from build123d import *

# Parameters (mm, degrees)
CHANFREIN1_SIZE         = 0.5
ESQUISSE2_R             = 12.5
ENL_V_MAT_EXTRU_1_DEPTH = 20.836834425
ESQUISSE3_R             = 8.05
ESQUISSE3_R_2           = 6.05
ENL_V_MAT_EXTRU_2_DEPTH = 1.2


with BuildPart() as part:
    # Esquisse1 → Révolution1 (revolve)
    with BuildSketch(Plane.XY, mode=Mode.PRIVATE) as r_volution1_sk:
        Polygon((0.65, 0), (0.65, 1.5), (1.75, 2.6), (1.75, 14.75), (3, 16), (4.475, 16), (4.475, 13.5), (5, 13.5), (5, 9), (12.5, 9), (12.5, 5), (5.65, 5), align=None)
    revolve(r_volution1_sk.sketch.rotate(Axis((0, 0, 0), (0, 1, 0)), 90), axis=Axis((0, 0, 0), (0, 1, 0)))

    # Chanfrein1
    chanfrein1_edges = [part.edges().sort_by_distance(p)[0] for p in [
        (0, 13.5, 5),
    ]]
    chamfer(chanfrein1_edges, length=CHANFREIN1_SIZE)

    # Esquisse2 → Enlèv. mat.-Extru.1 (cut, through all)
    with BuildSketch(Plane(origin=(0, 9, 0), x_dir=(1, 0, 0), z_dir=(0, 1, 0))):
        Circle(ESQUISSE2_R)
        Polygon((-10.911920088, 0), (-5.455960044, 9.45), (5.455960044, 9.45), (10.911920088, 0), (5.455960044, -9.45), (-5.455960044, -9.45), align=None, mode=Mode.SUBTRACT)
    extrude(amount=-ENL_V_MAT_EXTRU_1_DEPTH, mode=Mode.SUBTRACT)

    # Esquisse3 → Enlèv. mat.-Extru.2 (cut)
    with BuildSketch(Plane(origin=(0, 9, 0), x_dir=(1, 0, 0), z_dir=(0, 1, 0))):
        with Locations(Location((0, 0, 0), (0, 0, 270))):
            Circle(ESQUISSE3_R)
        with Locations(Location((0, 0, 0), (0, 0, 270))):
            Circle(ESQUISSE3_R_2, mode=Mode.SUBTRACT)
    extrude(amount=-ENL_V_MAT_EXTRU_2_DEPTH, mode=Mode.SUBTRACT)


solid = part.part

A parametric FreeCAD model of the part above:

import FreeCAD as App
import Part
import Sketcher
from FreeCAD import Vector
Q = App.Units.Quantity


def edges_at(feature, points):
    """Names of the edges that pass closest to the given points."""
    edges = feature.Shape.Edges
    near = lambda p: min(range(len(edges)), key=lambda i: edges[i].distToShape(Part.Vertex(*p))[0])
    return sorted({f"Edge{near(p) + 1}" for p in points})

doc = App.newDocument("Part")
params = doc.addObject("Spreadsheet::Sheet", "Params")
for row, (alias, value) in enumerate([
    ("sketch1_height", "4 mm"),
    ("sketch1_width", "7.5 mm"),
    ("sketch1_height2", "1.5 mm"),
    ("sketch1_height3", "4.5 mm"),
    ("sketch1_height4", "2.5 mm"),
    ("revolution_angle", "360 deg"),
    ("chamfer_size", "0.5 mm"),
    ("sketch2_diameter", "25 mm"),
    ("sketch3_diameter", "16.1 mm"),
    ("sketch3_diameter2", "12.1 mm"),
    ("pocket2_length", "1.2 mm"),
], start=1):
    params.set(f"A{row}", alias)
    params.set(f"B{row}", "=" + value)
    params.setAlias(f"B{row}", alias)

body = doc.addObject("PartDesign::Body", "Body")

# Sketch on XY plane
sketch1 = body.newObject("Sketcher::SketchObject", "Sketch")
sketch1.AttachmentSupport = (doc.getObject("XY_Plane"), [""])
sketch1.MapMode = "FlatFace"
sketch1.addGeometry([
    Part.LineSegment(Vector(0.7, 1.5, 0), Vector(0.7, 0, 0)),  # 0
    Part.LineSegment(Vector(0.7, 0, 0), Vector(5.7, 5, 0)),  # 1
    Part.LineSegment(Vector(5.7, 5, 0), Vector(12.5, 5, 0)),  # 2
    Part.LineSegment(Vector(12.5, 5, 0), Vector(12.5, 9, 0)),  # 3
    Part.LineSegment(Vector(12.5, 9, 0), Vector(5, 9, 0)),  # 4
    Part.LineSegment(Vector(5, 9, 0), Vector(5, 13.5, 0)),  # 5
    Part.LineSegment(Vector(5, 13.5, 0), Vector(4.5, 13.5, 0)),  # 6
    Part.LineSegment(Vector(4.5, 13.5, 0), Vector(4.5, 16, 0)),  # 7
    Part.LineSegment(Vector(4.5, 16, 0), Vector(3, 16, 0)),  # 8
    Part.LineSegment(Vector(3, 16, 0), Vector(1.8, 14.8, 0)),  # 9
    Part.LineSegment(Vector(1.8, 14.8, 0), Vector(1.8, 2.6, 0)),  # 10
    Part.LineSegment(Vector(1.8, 2.6, 0), Vector(0.7, 1.5, 0)),  # 11
], False)
sketch1.addConstraint([
    Sketcher.Constraint("Coincident", 0, 2, 1, 1),
    Sketcher.Constraint("Coincident", 1, 2, 2, 1),
    Sketcher.Constraint("Coincident", 2, 2, 3, 1),
    Sketcher.Constraint("Coincident", 3, 2, 4, 1),
    Sketcher.Constraint("Coincident", 4, 2, 5, 1),
    Sketcher.Constraint("Coincident", 5, 2, 6, 1),
    Sketcher.Constraint("Coincident", 6, 2, 7, 1),
    Sketcher.Constraint("Coincident", 7, 2, 8, 1),
    Sketcher.Constraint("Coincident", 8, 2, 9, 1),
    Sketcher.Constraint("Coincident", 9, 2, 10, 1),
    Sketcher.Constraint("Coincident", 10, 2, 11, 1),
    Sketcher.Constraint("Coincident", 11, 2, 0, 1),
    Sketcher.Constraint("Vertical", 0),
    Sketcher.Constraint("Horizontal", 2),
    Sketcher.Constraint("Vertical", 3),
    Sketcher.Constraint("Horizontal", 4),
    Sketcher.Constraint("Vertical", 5),
    Sketcher.Constraint("Horizontal", 6),
    Sketcher.Constraint("Vertical", 7),
    Sketcher.Constraint("Horizontal", 8),
    Sketcher.Constraint("Vertical", 10),
    Sketcher.Constraint("PointOnObject", 0, 2, -1),
    Sketcher.Constraint("Parallel", 1, 9),
    Sketcher.Constraint("Parallel", 9, 11),
    Sketcher.Constraint("DistanceY", 3, 1, 3, 2, 4.0),
    Sketcher.Constraint("Angle", 1, Q("45 deg")),
    Sketcher.Constraint("DistanceX", 4, 2, 4, 1, 7.5),
    Sketcher.Constraint("DistanceY", 0, 2, 0, 1, 1.5),
    Sketcher.Constraint("DistanceY", 5, 1, 5, 2, 4.5),
    Sketcher.Constraint("DistanceY", 7, 1, 7, 2, 2.5),
    Sketcher.Constraint("DistanceY", -1, 1, 1, 2, 5.0),
    Sketcher.Constraint("DistanceX", -1, 1, 4, 2, 5.0),
    Sketcher.Constraint("DistanceX", -1, 1, 8, 2, 3.0),
    Sketcher.Constraint("DistanceX", 2, 1, 2, 2, 6.85),
    Sketcher.Constraint("DistanceY", -1, 1, 10, 2, 2.6),
    Sketcher.Constraint("DistanceX", 6, 2, 6, 1, 0.525),
])
sketch1.setExpression("Constraints[24]", "Params.sketch1_height")
sketch1.setExpression("Constraints[26]", "Params.sketch1_width")
sketch1.setExpression("Constraints[27]", "Params.sketch1_height2")
sketch1.setExpression("Constraints[28]", "Params.sketch1_height3")
sketch1.setExpression("Constraints[29]", "Params.sketch1_height4")
revolution = body.newObject("PartDesign::Revolution", "Revolution")
revolution.Profile = sketch1
revolution.ReferenceAxis = (sketch1, ["V_Axis"])
revolution.setExpression("Angle", "Params.revolution_angle")
doc.recompute()

chamfer = body.newObject("PartDesign::Chamfer", "Chamfer")
chamfer.Base = (revolution, edges_at(revolution, [(0, 13.5, 5)]))
chamfer.setExpression("Size", "Params.chamfer_size")

# Sketch on XZ plane
sketch2 = body.newObject("Sketcher::SketchObject", "Sketch001")
sketch2.AttachmentSupport = (doc.getObject("XZ_Plane"), [""])
sketch2.MapMode = "FlatFace"
sketch2.AttachmentOffset = App.Placement(Vector(0, 0, -9), App.Rotation())
sketch2.addGeometry([
    Part.Circle(Vector(0, 0, 0), Vector(0, 0, 1), 12),  # 0
    Part.LineSegment(Vector(-5, 9, 0), Vector(-11, 0, 0)),  # 1
    Part.LineSegment(Vector(-11, 0, 0), Vector(-5, -9, 0)),  # 2
    Part.LineSegment(Vector(-5, -9, 0), Vector(5, -9, 0)),  # 3
    Part.LineSegment(Vector(5, -9, 0), Vector(11, 0, 0)),  # 4
    Part.LineSegment(Vector(11, 0, 0), Vector(5, 9, 0)),  # 5
    Part.LineSegment(Vector(5, 9, 0), Vector(-5, 9, 0)),  # 6
], False)
sketch2.addConstraint([
    Sketcher.Constraint("Coincident", 1, 2, 2, 1),
    Sketcher.Constraint("Coincident", 2, 2, 3, 1),
    Sketcher.Constraint("Coincident", 3, 2, 4, 1),
    Sketcher.Constraint("Coincident", 4, 2, 5, 1),
    Sketcher.Constraint("Coincident", 5, 2, 6, 1),
    Sketcher.Constraint("Coincident", 6, 2, 1, 1),
    Sketcher.Constraint("Horizontal", 3),
    Sketcher.Constraint("Horizontal", 6),
    Sketcher.Constraint("Coincident", 0, 3, -1, 1),
    Sketcher.Constraint("Symmetric", 1, 2, 4, 2, -1, 1),
    Sketcher.Constraint("Symmetric", 2, 2, 5, 2, -1, 1),
    Sketcher.Constraint("PointOnObject", 1, 2, -1),
    Sketcher.Constraint("Parallel", 1, 4),
    Sketcher.Constraint("Vertical", 3, 2, 5, 2),
    Sketcher.Constraint("Diameter", 0, 25.0),
    Sketcher.Constraint("Angle", 1, Q("-120 deg")),
    Sketcher.Constraint("DistanceY", 3, 2, 5, 2, 18.9),
    Sketcher.Constraint("DistanceX", 3, 1, 3, 2, 10.91192),
])
sketch2.setExpression("Constraints[14]", "Params.sketch2_diameter")
pocket1 = body.newObject("PartDesign::Pocket", "Pocket")
pocket1.Profile = sketch2
pocket1.Type = "ThroughAll"
pocket1.Reversed = True

# Sketch on XZ plane
sketch3 = body.newObject("Sketcher::SketchObject", "Sketch002")
sketch3.AttachmentSupport = (doc.getObject("XZ_Plane"), [""])
sketch3.MapMode = "FlatFace"
sketch3.AttachmentOffset = App.Placement(Vector(0, 0, -9), App.Rotation())
sketch3.addGeometry([
    Part.Circle(Vector(0, 0, 0), Vector(0, 0, 1), 8),
    Part.Circle(Vector(0, 0, 0), Vector(0, 0, 1), 6),
], False)
sketch3.addConstraint([
    Sketcher.Constraint("Coincident", 0, 3, -1, 1),
    Sketcher.Constraint("Coincident", 1, 3, -1, 1),
    Sketcher.Constraint("Diameter", 0, 16.1),
    Sketcher.Constraint("Diameter", 1, 12.1),
])
sketch3.setExpression("Constraints[2]", "Params.sketch3_diameter")
sketch3.setExpression("Constraints[3]", "Params.sketch3_diameter2")
pocket2 = body.newObject("PartDesign::Pocket", "Pocket001")
pocket2.Profile = sketch3
pocket2.setExpression("Length", "Params.pocket2_length")
pocket2.Reversed = True

doc.recompute()
